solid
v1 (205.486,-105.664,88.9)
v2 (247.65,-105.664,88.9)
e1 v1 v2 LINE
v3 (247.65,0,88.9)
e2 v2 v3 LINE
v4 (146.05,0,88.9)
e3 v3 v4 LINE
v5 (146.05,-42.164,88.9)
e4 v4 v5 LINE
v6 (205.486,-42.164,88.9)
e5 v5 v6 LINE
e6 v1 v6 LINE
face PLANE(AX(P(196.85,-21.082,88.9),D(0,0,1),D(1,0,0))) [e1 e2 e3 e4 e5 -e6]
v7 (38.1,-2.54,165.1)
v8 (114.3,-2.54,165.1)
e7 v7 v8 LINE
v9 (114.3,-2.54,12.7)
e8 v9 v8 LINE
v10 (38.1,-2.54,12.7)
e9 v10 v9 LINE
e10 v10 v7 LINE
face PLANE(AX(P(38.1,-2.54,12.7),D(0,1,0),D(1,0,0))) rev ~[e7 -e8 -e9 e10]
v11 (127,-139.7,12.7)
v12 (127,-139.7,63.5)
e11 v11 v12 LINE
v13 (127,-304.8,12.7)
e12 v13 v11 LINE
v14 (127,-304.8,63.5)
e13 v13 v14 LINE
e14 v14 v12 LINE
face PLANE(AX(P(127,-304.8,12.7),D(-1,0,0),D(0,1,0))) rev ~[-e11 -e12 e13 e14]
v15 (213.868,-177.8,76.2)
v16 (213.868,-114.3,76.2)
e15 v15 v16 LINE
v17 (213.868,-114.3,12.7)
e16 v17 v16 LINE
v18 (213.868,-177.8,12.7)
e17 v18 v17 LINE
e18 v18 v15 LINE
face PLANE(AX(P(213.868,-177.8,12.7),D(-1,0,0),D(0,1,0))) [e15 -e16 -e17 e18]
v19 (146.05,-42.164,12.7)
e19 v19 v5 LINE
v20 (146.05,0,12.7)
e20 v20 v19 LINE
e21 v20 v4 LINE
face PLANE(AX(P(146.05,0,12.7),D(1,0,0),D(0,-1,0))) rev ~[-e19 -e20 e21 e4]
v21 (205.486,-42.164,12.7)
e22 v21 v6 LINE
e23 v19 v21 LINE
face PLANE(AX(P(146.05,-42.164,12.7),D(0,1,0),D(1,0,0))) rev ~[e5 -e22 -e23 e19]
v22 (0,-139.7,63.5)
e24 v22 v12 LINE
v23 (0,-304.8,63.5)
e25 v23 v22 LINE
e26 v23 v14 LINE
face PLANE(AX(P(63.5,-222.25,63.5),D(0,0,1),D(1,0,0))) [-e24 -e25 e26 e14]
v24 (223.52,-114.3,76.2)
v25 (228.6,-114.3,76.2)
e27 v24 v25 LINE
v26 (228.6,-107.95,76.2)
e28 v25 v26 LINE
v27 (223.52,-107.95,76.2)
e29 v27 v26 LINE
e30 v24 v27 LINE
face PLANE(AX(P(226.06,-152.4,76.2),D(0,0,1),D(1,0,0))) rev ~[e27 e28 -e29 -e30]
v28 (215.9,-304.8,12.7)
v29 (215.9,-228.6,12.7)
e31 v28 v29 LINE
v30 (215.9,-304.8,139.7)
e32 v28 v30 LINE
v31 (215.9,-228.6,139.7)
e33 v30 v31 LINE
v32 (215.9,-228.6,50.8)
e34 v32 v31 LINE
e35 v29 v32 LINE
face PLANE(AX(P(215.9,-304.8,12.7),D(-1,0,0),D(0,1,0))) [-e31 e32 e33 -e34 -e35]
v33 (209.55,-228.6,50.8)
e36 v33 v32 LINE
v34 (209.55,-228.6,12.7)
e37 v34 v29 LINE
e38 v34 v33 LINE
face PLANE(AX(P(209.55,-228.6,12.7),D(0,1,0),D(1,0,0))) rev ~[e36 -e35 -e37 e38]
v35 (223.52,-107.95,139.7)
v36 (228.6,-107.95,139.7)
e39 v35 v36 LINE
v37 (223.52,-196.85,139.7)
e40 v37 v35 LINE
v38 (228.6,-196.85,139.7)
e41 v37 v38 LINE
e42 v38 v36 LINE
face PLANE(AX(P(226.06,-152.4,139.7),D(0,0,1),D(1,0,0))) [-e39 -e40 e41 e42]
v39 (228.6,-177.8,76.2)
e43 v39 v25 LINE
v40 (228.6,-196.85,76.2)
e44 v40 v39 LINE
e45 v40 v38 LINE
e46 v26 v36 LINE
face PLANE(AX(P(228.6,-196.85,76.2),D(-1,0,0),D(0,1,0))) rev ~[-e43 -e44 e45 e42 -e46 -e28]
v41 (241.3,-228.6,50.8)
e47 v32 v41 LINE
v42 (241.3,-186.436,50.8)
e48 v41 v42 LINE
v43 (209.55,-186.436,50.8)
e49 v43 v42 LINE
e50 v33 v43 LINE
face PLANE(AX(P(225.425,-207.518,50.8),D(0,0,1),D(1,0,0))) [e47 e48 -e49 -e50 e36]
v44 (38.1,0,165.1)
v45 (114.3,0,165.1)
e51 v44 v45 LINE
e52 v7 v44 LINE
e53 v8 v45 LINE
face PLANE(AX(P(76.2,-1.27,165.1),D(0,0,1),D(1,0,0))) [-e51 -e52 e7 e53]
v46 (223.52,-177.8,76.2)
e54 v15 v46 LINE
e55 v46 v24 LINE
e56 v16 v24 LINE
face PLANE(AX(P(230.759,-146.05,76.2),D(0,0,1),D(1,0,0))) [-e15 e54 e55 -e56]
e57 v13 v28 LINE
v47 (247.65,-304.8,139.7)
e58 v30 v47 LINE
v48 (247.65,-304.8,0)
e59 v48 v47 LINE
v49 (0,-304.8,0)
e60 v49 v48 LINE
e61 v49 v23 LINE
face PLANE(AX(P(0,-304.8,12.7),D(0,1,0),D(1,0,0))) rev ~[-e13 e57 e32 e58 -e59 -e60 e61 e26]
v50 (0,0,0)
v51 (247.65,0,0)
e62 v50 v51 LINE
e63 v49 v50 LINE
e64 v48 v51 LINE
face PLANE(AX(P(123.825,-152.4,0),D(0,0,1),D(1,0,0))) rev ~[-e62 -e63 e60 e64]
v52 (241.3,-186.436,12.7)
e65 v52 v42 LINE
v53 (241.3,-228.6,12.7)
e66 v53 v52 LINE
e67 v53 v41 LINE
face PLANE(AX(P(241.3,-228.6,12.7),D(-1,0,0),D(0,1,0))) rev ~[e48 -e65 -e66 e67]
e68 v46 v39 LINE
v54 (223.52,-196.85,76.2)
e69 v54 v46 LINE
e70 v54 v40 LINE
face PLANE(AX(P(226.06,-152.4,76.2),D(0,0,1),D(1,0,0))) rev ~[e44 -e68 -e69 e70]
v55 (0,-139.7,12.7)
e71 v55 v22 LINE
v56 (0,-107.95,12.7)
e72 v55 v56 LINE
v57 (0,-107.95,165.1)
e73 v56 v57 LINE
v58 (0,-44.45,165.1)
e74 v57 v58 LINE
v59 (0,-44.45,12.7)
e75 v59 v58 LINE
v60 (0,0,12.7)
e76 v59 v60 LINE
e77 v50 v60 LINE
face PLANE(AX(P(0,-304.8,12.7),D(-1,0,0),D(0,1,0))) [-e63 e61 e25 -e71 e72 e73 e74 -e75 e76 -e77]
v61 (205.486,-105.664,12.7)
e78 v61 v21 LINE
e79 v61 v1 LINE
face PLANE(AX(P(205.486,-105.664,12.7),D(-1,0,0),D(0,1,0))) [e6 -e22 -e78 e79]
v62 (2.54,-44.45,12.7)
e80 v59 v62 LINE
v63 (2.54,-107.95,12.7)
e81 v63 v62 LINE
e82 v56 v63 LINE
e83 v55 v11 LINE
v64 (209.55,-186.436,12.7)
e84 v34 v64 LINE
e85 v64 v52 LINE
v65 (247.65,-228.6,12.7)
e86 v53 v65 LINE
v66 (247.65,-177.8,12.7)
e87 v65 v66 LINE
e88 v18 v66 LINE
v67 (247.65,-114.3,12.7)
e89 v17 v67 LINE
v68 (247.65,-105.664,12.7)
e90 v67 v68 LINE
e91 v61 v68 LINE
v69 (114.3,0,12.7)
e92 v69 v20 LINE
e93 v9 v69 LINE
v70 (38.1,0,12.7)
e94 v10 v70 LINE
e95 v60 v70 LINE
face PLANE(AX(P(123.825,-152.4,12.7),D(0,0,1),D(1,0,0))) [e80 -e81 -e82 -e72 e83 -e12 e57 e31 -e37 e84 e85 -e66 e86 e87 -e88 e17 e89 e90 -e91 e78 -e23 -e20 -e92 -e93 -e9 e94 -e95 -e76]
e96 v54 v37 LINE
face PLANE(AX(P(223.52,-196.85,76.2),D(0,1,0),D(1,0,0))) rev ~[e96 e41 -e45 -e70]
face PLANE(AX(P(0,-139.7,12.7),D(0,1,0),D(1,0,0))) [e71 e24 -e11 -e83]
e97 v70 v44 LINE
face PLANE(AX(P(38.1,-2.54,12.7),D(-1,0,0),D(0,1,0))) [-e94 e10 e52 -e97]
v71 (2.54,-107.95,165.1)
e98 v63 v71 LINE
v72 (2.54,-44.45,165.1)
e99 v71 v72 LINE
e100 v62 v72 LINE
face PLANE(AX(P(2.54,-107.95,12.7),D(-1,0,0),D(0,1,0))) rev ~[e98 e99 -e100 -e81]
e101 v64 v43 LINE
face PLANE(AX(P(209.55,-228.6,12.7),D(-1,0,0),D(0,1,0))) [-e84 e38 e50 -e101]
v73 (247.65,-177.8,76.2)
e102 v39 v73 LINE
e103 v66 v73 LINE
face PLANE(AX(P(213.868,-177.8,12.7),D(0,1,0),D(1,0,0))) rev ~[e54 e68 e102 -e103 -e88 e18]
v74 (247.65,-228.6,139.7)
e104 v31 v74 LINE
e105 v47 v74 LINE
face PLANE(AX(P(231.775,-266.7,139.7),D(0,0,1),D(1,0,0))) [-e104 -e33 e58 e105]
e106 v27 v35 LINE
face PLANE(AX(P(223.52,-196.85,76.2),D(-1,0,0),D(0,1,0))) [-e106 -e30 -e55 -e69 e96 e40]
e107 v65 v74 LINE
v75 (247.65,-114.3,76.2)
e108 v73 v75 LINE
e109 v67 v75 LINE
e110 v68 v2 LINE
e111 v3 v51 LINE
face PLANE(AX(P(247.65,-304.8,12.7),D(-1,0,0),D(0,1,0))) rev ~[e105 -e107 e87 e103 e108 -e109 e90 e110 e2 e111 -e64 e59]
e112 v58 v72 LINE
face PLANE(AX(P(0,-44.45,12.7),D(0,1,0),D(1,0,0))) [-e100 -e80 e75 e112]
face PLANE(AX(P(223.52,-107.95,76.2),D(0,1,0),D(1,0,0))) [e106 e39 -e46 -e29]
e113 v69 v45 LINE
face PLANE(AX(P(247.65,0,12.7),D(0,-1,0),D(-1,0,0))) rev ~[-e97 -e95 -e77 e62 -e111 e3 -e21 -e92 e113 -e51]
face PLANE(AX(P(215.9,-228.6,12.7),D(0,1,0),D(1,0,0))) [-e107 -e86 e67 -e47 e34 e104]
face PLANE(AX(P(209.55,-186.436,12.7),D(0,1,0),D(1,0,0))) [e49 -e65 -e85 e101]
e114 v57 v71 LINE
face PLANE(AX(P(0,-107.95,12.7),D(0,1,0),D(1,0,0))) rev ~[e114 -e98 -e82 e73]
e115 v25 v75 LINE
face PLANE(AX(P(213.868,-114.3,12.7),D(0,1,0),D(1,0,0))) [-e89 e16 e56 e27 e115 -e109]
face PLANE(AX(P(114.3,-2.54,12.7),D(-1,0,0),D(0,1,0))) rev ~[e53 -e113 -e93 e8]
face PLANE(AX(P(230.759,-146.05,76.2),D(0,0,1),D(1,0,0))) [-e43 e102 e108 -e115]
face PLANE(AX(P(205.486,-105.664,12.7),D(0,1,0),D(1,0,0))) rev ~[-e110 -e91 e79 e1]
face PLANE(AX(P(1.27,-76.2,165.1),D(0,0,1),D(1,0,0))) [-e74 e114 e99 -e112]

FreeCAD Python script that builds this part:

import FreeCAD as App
import Part
import Sketcher
Q = App.Units.Quantity

doc = App.newDocument("Part")
params = doc.addObject("Spreadsheet::Sheet", "Params")
for row, (alias, value) in enumerate([
    ("sketch1_height", "12 in"),
    ("sketch1_width", "9.75 in"),
    ("pad1_length", "0.5 in"),
    ("sketch2_width", "0.1 in"),
    ("sketch2_height", "2.5 in"),
    ("pad2_length", "6 in"),
    ("sketch3_width", "3 in"),
    ("sketch3_height", "0.1 in"),
    ("pad3_length", "6 in"),
    ("sketch4_width", "4 in"),
    ("sketch4_height", "2.5 in"),
    ("sketch4_width2", "2.34 in"),
    ("pad4_length", "3 in"),
    ("sketch5_height", "2.5 in"),
    ("sketch5_width", "1.33 in"),
    ("pad5_length", "2.5 in"),
    ("sketch6_width", "0.2 in"),
    ("sketch6_height", "3.5 in"),
    ("pad6_length", "2.5 in"),
    ("sketch7_height", "3 in"),
    ("sketch7_width", "1.25 in"),
    ("pad7_length", "5 in"),
    ("sketch8_width", "1.25 in"),
    ("sketch8_height", "1.66 in"),
    ("pad8_length", "1.5 in"),
    ("sketch9_width", "5 in"),
    ("sketch9_height", "6.5 in"),
    ("pad9_length", "2 in"),
], start=1):
    params.set(f"A{row}", alias)
    params.set(f"B{row}", "=" + value)
    params.setAlias(f"B{row}", alias)

body = doc.addObject("PartDesign::Body", "Body")

# Sketch on XY plane
sketch1 = body.newObject("Sketcher::SketchObject", "Sketch")
sketch1.AttachmentSupport = (doc.getObject("XY_Plane"), [""])
sketch1.MapMode = "FlatFace"
sketch1.addGeometry(Part.LineSegment(App.Vector(0, 0, 0), App.Vector(0, -305, 0)), False)
sketch1.addGeometry(Part.LineSegment(App.Vector(0, -305, 0), App.Vector(248, -305, 0)), False)
sketch1.addGeometry(Part.LineSegment(App.Vector(248, -305, 0), App.Vector(248, 0, 0)), False)
sketch1.addGeometry(Part.LineSegment(App.Vector(248, 0, 0), App.Vector(0, 0, 0)), False)
sketch1.addConstraint(Sketcher.Constraint("Coincident", 0, 2, 1, 1))
sketch1.addConstraint(Sketcher.Constraint("Coincident", 1, 2, 2, 1))
sketch1.addConstraint(Sketcher.Constraint("Coincident", 2, 2, 3, 1))
sketch1.addConstraint(Sketcher.Constraint("Coincident", 3, 2, 0, 1))
sketch1.addConstraint(Sketcher.Constraint("Vertical", 0))
sketch1.addConstraint(Sketcher.Constraint("Horizontal", 1))
sketch1.addConstraint(Sketcher.Constraint("Vertical", 2))
sketch1.addConstraint(Sketcher.Constraint("Horizontal", 3))
sketch1.addConstraint(Sketcher.Constraint("Coincident", 3, 2, -1, 1))
sketch1.addConstraint(Sketcher.Constraint("DistanceY", 0, 2, 0, 1, Q("12 in")))
sketch1.addConstraint(Sketcher.Constraint("DistanceX", 1, 1, 1, 2, Q("9.75 in")))
sketch1.setExpression("Constraints[9]", "Params.sketch1_height")
sketch1.setExpression("Constraints[10]", "Params.sketch1_width")
pad1 = body.newObject("PartDesign::Pad", "Pad")
pad1.Profile = sketch1
pad1.setExpression("Length", "Params.pad1_length")

# Sketch on XY plane
sketch2 = body.newObject("Sketcher::SketchObject", "Sketch001")
sketch2.AttachmentSupport = (doc.getObject("XY_Plane"), [""])
sketch2.MapMode = "FlatFace"
sketch2.AttachmentOffset = App.Placement(App.Vector(0, 0, 0.5 * 25.4), App.Rotation())
sketch2.addGeometry(Part.LineSegment(App.Vector(0, -44.5, 0), App.Vector(0, -108, 0)), False)
sketch2.addGeometry(Part.LineSegment(App.Vector(0, -108, 0), App.Vector(2.5, -108, 0)), False)
sketch2.addGeometry(Part.LineSegment(App.Vector(2.5, -108, 0), App.Vector(2.5, -44.5, 0)), False)
sketch2.addGeometry(Part.LineSegment(App.Vector(2.5, -44.5, 0), App.Vector(0, -44.5, 0)), False)
sketch2.addConstraint(Sketcher.Constraint("Coincident", 0, 2, 1, 1))
sketch2.addConstraint(Sketcher.Constraint("Coincident", 1, 2, 2, 1))
sketch2.addConstraint(Sketcher.Constraint("Coincident", 2, 2, 3, 1))
sketch2.addConstraint(Sketcher.Constraint("Coincident", 3, 2, 0, 1))
sketch2.addConstraint(Sketcher.Constraint("Vertical", 0))
sketch2.addConstraint(Sketcher.Constraint("Horizontal", 1))
sketch2.addConstraint(Sketcher.Constraint("Vertical", 2))
sketch2.addConstraint(Sketcher.Constraint("Horizontal", 3))
sketch2.addConstraint(Sketcher.Constraint("PointOnObject", 0, 2, -2))
sketch2.addConstraint(Sketcher.Constraint("DistanceX", 1, 1, 1, 2, Q("0.1 in")))
sketch2.addConstraint(Sketcher.Constraint("DistanceY", 0, 2, 0, 1, Q("2.5 in")))
sketch2.addConstraint(Sketcher.Constraint("DistanceY", 0, 2, -1, 1, Q("4.25 in")))
sketch2.setExpression("Constraints[9]", "Params.sketch2_width")
sketch2.setExpression("Constraints[10]", "Params.sketch2_height")
pad2 = body.newObject("PartDesign::Pad", "Pad001")
pad2.Profile = sketch2
pad2.setExpression("Length", "Params.pad2_length")

# Sketch on XY plane
sketch3 = body.newObject("Sketcher::SketchObject", "Sketch002")
sketch3.AttachmentSupport = (doc.getObject("XY_Plane"), [""])
sketch3.MapMode = "FlatFace"
sketch3.AttachmentOffset = App.Placement(App.Vector(0, 0, 0.5 * 25.4), App.Rotation())
sketch3.addGeometry(Part.LineSegment(App.Vector(38.1, 0, 0), App.Vector(38.1, -2.5, 0)), False)
sketch3.addGeometry(Part.LineSegment(App.Vector(38.1, -2.5, 0), App.Vector(114.3, -2.5, 0)), False)
sketch3.addGeometry(Part.LineSegment(App.Vector(114.3, -2.5, 0), App.Vector(114.3, 0, 0)), False)
sketch3.addGeometry(Part.LineSegment(App.Vector(114.3, 0, 0), App.Vector(38.1, 0, 0)), False)
sketch3.addConstraint(Sketcher.Constraint("Coincident", 0, 2, 1, 1))
sketch3.addConstraint(Sketcher.Constraint("Coincident", 1, 2, 2, 1))
sketch3.addConstraint(Sketcher.Constraint("Coincident", 2, 2, 3, 1))
sketch3.addConstraint(Sketcher.Constraint("Coincident", 3, 2, 0, 1))
sketch3.addConstraint(Sketcher.Constraint("Vertical", 0))
sketch3.addConstraint(Sketcher.Constraint("Horizontal", 1))
sketch3.addConstraint(Sketcher.Constraint("Vertical", 2))
sketch3.addConstraint(Sketcher.Constraint("Horizontal", 3))
sketch3.addConstraint(Sketcher.Constraint("PointOnObject", 2, 2, -1))
sketch3.addConstraint(Sketcher.Constraint("DistanceX", 1, 1, 1, 2, Q("3 in")))
sketch3.addConstraint(Sketcher.Constraint("DistanceY", 0, 2, 0, 1, Q("0.1 in")))
sketch3.addConstraint(Sketcher.Constraint("DistanceX", -1, 1, 0, 2, Q("1.5 in")))
sketch3.setExpression("Constraints[9]", "Params.sketch3_width")
sketch3.setExpression("Constraints[10]", "Params.sketch3_height")
pad3 = body.newObject("PartDesign::Pad", "Pad002")
pad3.Profile = sketch3
pad3.setExpression("Length", "Params.pad3_length")

# Sketch on XY plane
sketch4 = body.newObject("Sketcher::SketchObject", "Sketch003")
sketch4.AttachmentSupport = (doc.getObject("XY_Plane"), [""])
sketch4.MapMode = "FlatFace"
sketch4.AttachmentOffset = App.Placement(App.Vector(0, 0, 0.5 * 25.4), App.Rotation())
sketch4.addGeometry(Part.LineSegment(App.Vector(248, 0, 0), App.Vector(146, 0, 0)), False)
sketch4.addGeometry(Part.LineSegment(App.Vector(146, 0, 0), App.Vector(146, -42, 0)), False)
sketch4.addGeometry(Part.LineSegment(App.Vector(146, -42, 0), App.Vector(205, -42, 0)), False)
sketch4.addGeometry(Part.LineSegment(App.Vector(205, -42, 0), App.Vector(205, -106, 0)), False)
sketch4.addGeometry(Part.LineSegment(App.Vector(205, -106, 0), App.Vector(248, -106, 0)), False)
sketch4.addGeometry(Part.LineSegment(App.Vector(248, -106, 0), App.Vector(248, 0, 0)), False)
sketch4.addConstraint(Sketcher.Constraint("Coincident", 0, 2, 1, 1))
sketch4.addConstraint(Sketcher.Constraint("Coincident", 1, 2, 2, 1))
sketch4.addConstraint(Sketcher.Constraint("Coincident", 2, 2, 3, 1))
sketch4.addConstraint(Sketcher.Constraint("Coincident", 3, 2, 4, 1))
sketch4.addConstraint(Sketcher.Constraint("Coincident", 4, 2, 5, 1))
sketch4.addConstraint(Sketcher.Constraint("Coincident", 5, 2, 0, 1))
sketch4.addConstraint(Sketcher.Constraint("Horizontal", 0))
sketch4.addConstraint(Sketcher.Constraint("Vertical", 1))
sketch4.addConstraint(Sketcher.Constraint("Horizontal", 2))
sketch4.addConstraint(Sketcher.Constraint("Vertical", 3))
sketch4.addConstraint(Sketcher.Constraint("Horizontal", 4))
sketch4.addConstraint(Sketcher.Constraint("Vertical", 5))
sketch4.addConstraint(Sketcher.Constraint("PointOnObject", 0, 2, -1))
sketch4.addConstraint(Sketcher.Constraint("Equal", 4, 1))
sketch4.addConstraint(Sketcher.Constraint("DistanceX", 0, 2, 0, 1, Q("4 in")))
sketch4.addConstraint(Sketcher.Constraint("DistanceY", 3, 2, 3, 1, Q("2.5 in")))
sketch4.addConstraint(Sketcher.Constraint("DistanceX", 2, 1, 2, 2, Q("2.34 in")))
sketch4.addConstraint(Sketcher.Constraint("DistanceX", -1, 1, 0, 2, Q("5.75 in")))
sketch4.setExpression("Constraints[14]", "Params.sketch4_width")
sketch4.setExpression("Constraints[15]", "Params.sketch4_height")
sketch4.setExpression("Constraints[16]", "Params.sketch4_width2")
pad4 = body.newObject("PartDesign::Pad", "Pad003")
pad4.Profile = sketch4
pad4.setExpression("Length", "Params.pad4_length")

# Sketch on XY plane
sketch5 = body.newObject("Sketcher::SketchObject", "Sketch004")
sketch5.AttachmentSupport = (doc.getObject("XY_Plane"), [""])
sketch5.MapMode = "FlatFace"
sketch5.AttachmentOffset = App.Placement(App.Vector(0, 0, 0.5 * 25.4), App.Rotation())
sketch5.addGeometry(Part.LineSegment(App.Vector(214, -114, 0), App.Vector(214, -178, 0)), False)
sketch5.addGeometry(Part.LineSegment(App.Vector(214, -178, 0), App.Vector(248, -178, 0)), False)
sketch5.addGeometry(Part.LineSegment(App.Vector(248, -178, 0), App.Vector(248, -114, 0)), False)
sketch5.addGeometry(Part.LineSegment(App.Vector(248, -114, 0), App.Vector(214, -114, 0)), False)
sketch5.addConstraint(Sketcher.Constraint("Coincident", 0, 2, 1, 1))
sketch5.addConstraint(Sketcher.Constraint("Coincident", 1, 2, 2, 1))
sketch5.addConstraint(Sketcher.Constraint("Coincident", 2, 2, 3, 1))
sketch5.addConstraint(Sketcher.Constraint("Coincident", 3, 2, 0, 1))
sketch5.addConstraint(Sketcher.Constraint("Vertical", 0))
sketch5.addConstraint(Sketcher.Constraint("Horizontal", 1))
sketch5.addConstraint(Sketcher.Constraint("Vertical", 2))
sketch5.addConstraint(Sketcher.Constraint("Horizontal", 3))
sketch5.addConstraint(Sketcher.Constraint("DistanceY", 0, 2, 0, 1, Q("2.5 in")))
sketch5.addConstraint(Sketcher.Constraint("DistanceY", 0, 2, -1, 1, Q("7 in")))
sketch5.addConstraint(Sketcher.Constraint("DistanceX", 1, 1, 1, 2, Q("1.33 in")))
sketch5.addConstraint(Sketcher.Constraint("DistanceX", -1, 1, 0, 2, Q("8.42 in")))
sketch5.setExpression("Constraints[8]", "Params.sketch5_height")
sketch5.setExpression("Constraints[10]", "Params.sketch5_width")
pad5 = body.newObject("PartDesign::Pad", "Pad004")
pad5.Profile = sketch5
pad5.setExpression("Length", "Params.pad5_length")

# Sketch on XY plane
sketch6 = body.newObject("Sketcher::SketchObject", "Sketch005")
sketch6.AttachmentSupport = (doc.getObject("XY_Plane"), [""])
sketch6.MapMode = "FlatFace"
sketch6.AttachmentOffset = App.Placement(App.Vector(0, 0, 3 * 25.4), App.Rotation())
sketch6.addGeometry(Part.LineSegment(App.Vector(224, -108, 0), App.Vector(224, -197, 0)), False)
sketch6.addGeometry(Part.LineSegment(App.Vector(224, -197, 0), App.Vector(229, -197, 0)), False)
sketch6.addGeometry(Part.LineSegment(App.Vector(229, -197, 0), App.Vector(229, -108, 0)), False)
sketch6.addGeometry(Part.LineSegment(App.Vector(229, -108, 0), App.Vector(224, -108, 0)), False)
sketch6.addConstraint(Sketcher.Constraint("Coincident", 0, 2, 1, 1))
sketch6.addConstraint(Sketcher.Constraint("Coincident", 1, 2, 2, 1))
sketch6.addConstraint(Sketcher.Constraint("Coincident", 2, 2, 3, 1))
sketch6.addConstraint(Sketcher.Constraint("Coincident", 3, 2, 0, 1))
sketch6.addConstraint(Sketcher.Constraint("Vertical", 0))
sketch6.addConstraint(Sketcher.Constraint("Horizontal", 1))
sketch6.addConstraint(Sketcher.Constraint("Vertical", 2))
sketch6.addConstraint(Sketcher.Constraint("Horizontal", 3))
sketch6.addConstraint(Sketcher.Constraint("DistanceX", 1, 1, 1, 2, Q("0.2 in")))
sketch6.addConstraint(Sketcher.Constraint("DistanceY", 0, 2, 0, 1, Q("3.5 in")))
sketch6.addConstraint(Sketcher.Constraint("DistanceX", -1, 1, 1, 2, Q("9 in")))
sketch6.addConstraint(Sketcher.Constraint("DistanceY", 0, 2, -1, 1, Q("7.75 in")))
sketch6.setExpression("Constraints[8]", "Params.sketch6_width")
sketch6.setExpression("Constraints[9]", "Params.sketch6_height")
pad6 = body.newObject("PartDesign::Pad", "Pad005")
pad6.Profile = sketch6
pad6.setExpression("Length", "Params.pad6_length")

# Sketch on XY plane
sketch7 = body.newObject("Sketcher::SketchObject", "Sketch006")
sketch7.AttachmentSupport = (doc.getObject("XY_Plane"), [""])
sketch7.MapMode = "FlatFace"
sketch7.AttachmentOffset = App.Placement(App.Vector(0, 0, 0.5 * 25.4), App.Rotation())
sketch7.addGeometry(Part.LineSegment(App.Vector(216, -229, 0), App.Vector(216, -305, 0)), False)
sketch7.addGeometry(Part.LineSegment(App.Vector(216, -305, 0), App.Vector(248, -305, 0)), False)
sketch7.addGeometry(Part.LineSegment(App.Vector(248, -305, 0), App.Vector(248, -229, 0)), False)
sketch7.addGeometry(Part.LineSegment(App.Vector(248, -229, 0), App.Vector(216, -229, 0)), False)
sketch7.addConstraint(Sketcher.Constraint("Coincident", 0, 2, 1, 1))
sketch7.addConstraint(Sketcher.Constraint("Coincident", 1, 2, 2, 1))
sketch7.addConstraint(Sketcher.Constraint("Coincident", 2, 2, 3, 1))
sketch7.addConstraint(Sketcher.Constraint("Coincident", 3, 2, 0, 1))
sketch7.addConstraint(Sketcher.Constraint("Vertical", 0))
sketch7.addConstraint(Sketcher.Constraint("Horizontal", 1))
sketch7.addConstraint(Sketcher.Constraint("Vertical", 2))
sketch7.addConstraint(Sketcher.Constraint("Horizontal", 3))
sketch7.addConstraint(Sketcher.Constraint("DistanceY", 0, 2, 0, 1, Q("3 in")))
sketch7.addConstraint(Sketcher.Constraint("DistanceY", 0, 2, -1, 1, Q("12 in")))
sketch7.addConstraint(Sketcher.Constraint("DistanceX", 1, 1, 1, 2, Q("1.25 in")))
sketch7.addConstraint(Sketcher.Constraint("DistanceX", -1, 1, 0, 2, Q("8.5 in")))
sketch7.setExpression("Constraints[8]", "Params.sketch7_height")
sketch7.setExpression("Constraints[10]", "Params.sketch7_width")
pad7 = body.newObject("PartDesign::Pad", "Pad006")
pad7.Profile = sketch7
pad7.setExpression("Length", "Params.pad7_length")

# Sketch on XY plane
sketch8 = body.newObject("Sketcher::SketchObject", "Sketch007")
sketch8.AttachmentSupport = (doc.getObject("XY_Plane"), [""])
sketch8.MapMode = "FlatFace"
sketch8.AttachmentOffset = App.Placement(App.Vector(0, 0, 0.5 * 25.4), App.Rotation())
sketch8.addGeometry(Part.LineSegment(App.Vector(210, -186, 0), App.Vector(210, -229, 0)), False)
sketch8.addGeometry(Part.LineSegment(App.Vector(210, -229, 0), App.Vector(241, -229, 0)), False)
sketch8.addGeometry(Part.LineSegment(App.Vector(241, -229, 0), App.Vector(241, -186, 0)), False)
sketch8.addGeometry(Part.LineSegment(App.Vector(241, -186, 0), App.Vector(210, -186, 0)), False)
sketch8.addConstraint(Sketcher.Constraint("Coincident", 0, 2, 1, 1))
sketch8.addConstraint(Sketcher.Constraint("Coincident", 1, 2, 2, 1))
sketch8.addConstraint(Sketcher.Constraint("Coincident", 2, 2, 3, 1))
sketch8.addConstraint(Sketcher.Constraint("Coincident", 3, 2, 0, 1))
sketch8.addConstraint(Sketcher.Constraint("Vertical", 0))
sketch8.addConstraint(Sketcher.Constraint("Horizontal", 1))
sketch8.addConstraint(Sketcher.Constraint("Vertical", 2))
sketch8.addConstraint(Sketcher.Constraint("Horizontal", 3))
sketch8.addConstraint(Sketcher.Constraint("DistanceY", 0, 2, -1, 1, Q("9 in")))
sketch8.addConstraint(Sketcher.Constraint("DistanceX", 1, 1, 1, 2, Q("1.25 in")))
sketch8.addConstraint(Sketcher.Constraint("DistanceY", 0, 2, 0, 1, Q("1.66 in")))
sketch8.addConstraint(Sketcher.Constraint("DistanceX", -1, 1, 1, 2, Q("9.5 in")))
sketch8.setExpression("Constraints[9]", "Params.sketch8_width")
sketch8.setExpression("Constraints[10]", "Params.sketch8_height")
pad8 = body.newObject("PartDesign::Pad", "Pad007")
pad8.Profile = sketch8
pad8.setExpression("Length", "Params.pad8_length")

# Sketch on XY plane
sketch9 = body.newObject("Sketcher::SketchObject", "Sketch008")
sketch9.AttachmentSupport = (doc.getObject("XY_Plane"), [""])
sketch9.MapMode = "FlatFace"
sketch9.AttachmentOffset = App.Placement(App.Vector(0, 0, 0.5 * 25.4), App.Rotation())
sketch9.addGeometry(Part.LineSegment(App.Vector(0, -140, 0), App.Vector(0, -305, 0)), False)
sketch9.addGeometry(Part.LineSegment(App.Vector(0, -305, 0), App.Vector(127, -305, 0)), False)
sketch9.addGeometry(Part.LineSegment(App.Vector(127, -305, 0), App.Vector(127, -140, 0)), False)
sketch9.addGeometry(Part.LineSegment(App.Vector(127, -140, 0), App.Vector(0, -140, 0)), False)
sketch9.addConstraint(Sketcher.Constraint("Coincident", 0, 2, 1, 1))
sketch9.addConstraint(Sketcher.Constraint("Coincident", 1, 2, 2, 1))
sketch9.addConstraint(Sketcher.Constraint("Coincident", 2, 2, 3, 1))
sketch9.addConstraint(Sketcher.Constraint("Coincident", 3, 2, 0, 1))
sketch9.addConstraint(Sketcher.Constraint("Vertical", 0))
sketch9.addConstraint(Sketcher.Constraint("Horizontal", 1))
sketch9.addConstraint(Sketcher.Constraint("Vertical", 2))
sketch9.addConstraint(Sketcher.Constraint("Horizontal", 3))
sketch9.addConstraint(Sketcher.Constraint("PointOnObject", 0, 2, -2))
sketch9.addConstraint(Sketcher.Constraint("DistanceX", 1, 1, 1, 2, Q("5 in")))
sketch9.addConstraint(Sketcher.Constraint("DistanceY", 0, 2, 0, 1, Q("6.5 in")))
sketch9.addConstraint(Sketcher.Constraint("DistanceY", 0, 2, -1, 1, Q("12 in")))
sketch9.setExpression("Constraints[9]", "Params.sketch9_width")
sketch9.setExpression("Constraints[10]", "Params.sketch9_height")
pad9 = body.newObject("PartDesign::Pad", "Pad008")
pad9.Profile = sketch9
pad9.setExpression("Length", "Params.pad9_length")

doc.recompute()
